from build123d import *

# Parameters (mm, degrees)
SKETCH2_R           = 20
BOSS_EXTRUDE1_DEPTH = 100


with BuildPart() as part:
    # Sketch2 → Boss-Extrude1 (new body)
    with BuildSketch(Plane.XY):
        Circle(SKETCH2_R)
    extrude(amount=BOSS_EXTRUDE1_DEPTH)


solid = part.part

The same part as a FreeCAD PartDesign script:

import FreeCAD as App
import Part
import Sketcher
Q = App.Units.Quantity

doc = App.newDocument("Part")
body = doc.addObject("PartDesign::Body", "Body")

# Sketch on XY plane
sketch1 = body.newObject("Sketcher::SketchObject", "Sketch")
sketch1.AttachmentSupport = (doc.getObject("XY_Plane"), [""])
sketch1.MapMode = "FlatFace"
sketch1.addGeometry(Part.Circle(App.Vector(0, 0, 0), App.Vector(0, 0, 1), 20), False)
sketch1.addConstraint([
    Sketcher.Constraint("Coincident", 0, 3, -1, 1),
    Sketcher.Constraint("Diameter", 0, Q("40 mm")),
])
pad1 = body.newObject("PartDesign::Pad", "Pad")
pad1.Profile = sketch1
pad1.Length = 100

doc.recompute()
